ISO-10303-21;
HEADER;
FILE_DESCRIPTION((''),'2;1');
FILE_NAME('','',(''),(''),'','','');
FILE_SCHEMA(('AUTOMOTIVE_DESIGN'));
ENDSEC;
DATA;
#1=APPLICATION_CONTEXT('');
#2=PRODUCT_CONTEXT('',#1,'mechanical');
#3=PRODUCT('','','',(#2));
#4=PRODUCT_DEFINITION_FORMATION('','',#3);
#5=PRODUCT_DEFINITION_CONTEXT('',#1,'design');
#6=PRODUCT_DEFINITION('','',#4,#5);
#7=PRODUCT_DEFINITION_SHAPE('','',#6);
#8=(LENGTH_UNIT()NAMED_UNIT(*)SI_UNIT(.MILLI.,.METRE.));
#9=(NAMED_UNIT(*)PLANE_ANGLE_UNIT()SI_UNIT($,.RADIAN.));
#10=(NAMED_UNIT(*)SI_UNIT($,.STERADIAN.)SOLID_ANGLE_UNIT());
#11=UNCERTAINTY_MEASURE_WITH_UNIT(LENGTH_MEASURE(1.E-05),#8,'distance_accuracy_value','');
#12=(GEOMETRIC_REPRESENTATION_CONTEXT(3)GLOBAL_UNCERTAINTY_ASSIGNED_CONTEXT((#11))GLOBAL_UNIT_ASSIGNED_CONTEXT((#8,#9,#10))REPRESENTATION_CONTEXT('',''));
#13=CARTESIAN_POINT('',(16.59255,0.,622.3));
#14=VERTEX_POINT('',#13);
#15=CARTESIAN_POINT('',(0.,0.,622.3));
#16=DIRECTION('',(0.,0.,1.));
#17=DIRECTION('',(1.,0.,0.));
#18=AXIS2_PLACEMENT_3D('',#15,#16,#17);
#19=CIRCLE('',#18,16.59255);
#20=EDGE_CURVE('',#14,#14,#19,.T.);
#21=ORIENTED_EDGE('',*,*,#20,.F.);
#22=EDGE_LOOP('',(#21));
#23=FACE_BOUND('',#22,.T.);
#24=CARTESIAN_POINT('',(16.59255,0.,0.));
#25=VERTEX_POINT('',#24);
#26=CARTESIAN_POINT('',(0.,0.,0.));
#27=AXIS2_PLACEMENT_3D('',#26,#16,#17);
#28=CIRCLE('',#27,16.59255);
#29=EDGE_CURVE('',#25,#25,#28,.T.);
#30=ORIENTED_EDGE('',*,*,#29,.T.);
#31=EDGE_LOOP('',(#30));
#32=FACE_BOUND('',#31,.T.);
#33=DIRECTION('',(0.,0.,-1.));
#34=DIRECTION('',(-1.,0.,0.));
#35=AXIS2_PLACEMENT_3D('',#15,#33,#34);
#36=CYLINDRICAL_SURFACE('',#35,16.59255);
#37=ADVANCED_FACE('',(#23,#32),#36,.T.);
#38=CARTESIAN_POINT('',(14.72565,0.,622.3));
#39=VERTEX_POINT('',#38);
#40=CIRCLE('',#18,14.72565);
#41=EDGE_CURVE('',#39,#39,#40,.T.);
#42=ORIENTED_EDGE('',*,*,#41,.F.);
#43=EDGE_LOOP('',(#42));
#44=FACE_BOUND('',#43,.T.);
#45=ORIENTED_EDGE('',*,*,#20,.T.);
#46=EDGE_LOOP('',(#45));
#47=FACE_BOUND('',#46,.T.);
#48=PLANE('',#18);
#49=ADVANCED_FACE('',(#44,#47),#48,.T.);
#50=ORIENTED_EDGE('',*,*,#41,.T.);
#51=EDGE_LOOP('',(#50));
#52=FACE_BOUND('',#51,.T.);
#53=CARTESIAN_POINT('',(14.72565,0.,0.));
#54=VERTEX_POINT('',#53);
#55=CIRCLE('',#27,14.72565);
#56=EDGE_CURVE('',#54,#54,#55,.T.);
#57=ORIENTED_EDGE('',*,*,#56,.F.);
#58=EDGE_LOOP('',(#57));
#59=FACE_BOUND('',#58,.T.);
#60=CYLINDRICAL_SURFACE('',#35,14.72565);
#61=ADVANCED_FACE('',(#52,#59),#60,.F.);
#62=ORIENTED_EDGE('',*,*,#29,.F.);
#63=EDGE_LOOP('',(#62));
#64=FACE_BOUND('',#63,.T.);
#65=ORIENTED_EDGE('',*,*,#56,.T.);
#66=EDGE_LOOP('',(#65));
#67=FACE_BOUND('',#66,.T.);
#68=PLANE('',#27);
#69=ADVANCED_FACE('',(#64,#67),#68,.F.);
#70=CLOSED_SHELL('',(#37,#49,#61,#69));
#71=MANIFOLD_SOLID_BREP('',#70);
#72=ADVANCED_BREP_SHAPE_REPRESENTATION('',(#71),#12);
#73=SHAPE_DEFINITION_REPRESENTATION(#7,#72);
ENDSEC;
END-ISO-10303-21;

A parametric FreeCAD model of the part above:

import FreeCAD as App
import Part
import Sketcher
Q = App.Units.Quantity

doc = App.newDocument("Part")
params = doc.addObject("Spreadsheet::Sheet", "Params")
for row, (alias, value) in enumerate([
    ("pad1_length", "24.5 in"),
], start=1):
    params.set(f"A{row}", alias)
    params.set(f"B{row}", "=" + value)
    params.setAlias(f"B{row}", alias)

body = doc.addObject("PartDesign::Body", "Body")

# Sketch on XY plane
sketch1 = doc.addObject("Sketcher::SketchObject", "Sketch")
body.addObject(sketch1)
sketch1.AttachmentSupport = (doc.XY_Plane, [""])
sketch1.MapMode = "FlatFace"
sketch1.addGeometry([
    Part.Circle(App.Vector(0, 0, 0), App.Vector(0, 0, 1), 17),
    Part.Circle(App.Vector(0, 0, 0), App.Vector(0, 0, 1), 15),
], False)
sketch1.addConstraint([
    Sketcher.Constraint("Coincident", 0, 3, -1, 1),
    Sketcher.Constraint("Coincident", 1, 3, -1, 1),
    Sketcher.Constraint("Diameter", 0, Q("1.3065 in")),
    Sketcher.Constraint("Diameter", 1, Q("1.1595 in")),
])
pad1 = doc.addObject("PartDesign::Pad", "Pad")
body.addObject(pad1)
pad1.Profile = sketch1
pad1.setExpression("Length", "Params.pad1_length")

doc.recompute()
